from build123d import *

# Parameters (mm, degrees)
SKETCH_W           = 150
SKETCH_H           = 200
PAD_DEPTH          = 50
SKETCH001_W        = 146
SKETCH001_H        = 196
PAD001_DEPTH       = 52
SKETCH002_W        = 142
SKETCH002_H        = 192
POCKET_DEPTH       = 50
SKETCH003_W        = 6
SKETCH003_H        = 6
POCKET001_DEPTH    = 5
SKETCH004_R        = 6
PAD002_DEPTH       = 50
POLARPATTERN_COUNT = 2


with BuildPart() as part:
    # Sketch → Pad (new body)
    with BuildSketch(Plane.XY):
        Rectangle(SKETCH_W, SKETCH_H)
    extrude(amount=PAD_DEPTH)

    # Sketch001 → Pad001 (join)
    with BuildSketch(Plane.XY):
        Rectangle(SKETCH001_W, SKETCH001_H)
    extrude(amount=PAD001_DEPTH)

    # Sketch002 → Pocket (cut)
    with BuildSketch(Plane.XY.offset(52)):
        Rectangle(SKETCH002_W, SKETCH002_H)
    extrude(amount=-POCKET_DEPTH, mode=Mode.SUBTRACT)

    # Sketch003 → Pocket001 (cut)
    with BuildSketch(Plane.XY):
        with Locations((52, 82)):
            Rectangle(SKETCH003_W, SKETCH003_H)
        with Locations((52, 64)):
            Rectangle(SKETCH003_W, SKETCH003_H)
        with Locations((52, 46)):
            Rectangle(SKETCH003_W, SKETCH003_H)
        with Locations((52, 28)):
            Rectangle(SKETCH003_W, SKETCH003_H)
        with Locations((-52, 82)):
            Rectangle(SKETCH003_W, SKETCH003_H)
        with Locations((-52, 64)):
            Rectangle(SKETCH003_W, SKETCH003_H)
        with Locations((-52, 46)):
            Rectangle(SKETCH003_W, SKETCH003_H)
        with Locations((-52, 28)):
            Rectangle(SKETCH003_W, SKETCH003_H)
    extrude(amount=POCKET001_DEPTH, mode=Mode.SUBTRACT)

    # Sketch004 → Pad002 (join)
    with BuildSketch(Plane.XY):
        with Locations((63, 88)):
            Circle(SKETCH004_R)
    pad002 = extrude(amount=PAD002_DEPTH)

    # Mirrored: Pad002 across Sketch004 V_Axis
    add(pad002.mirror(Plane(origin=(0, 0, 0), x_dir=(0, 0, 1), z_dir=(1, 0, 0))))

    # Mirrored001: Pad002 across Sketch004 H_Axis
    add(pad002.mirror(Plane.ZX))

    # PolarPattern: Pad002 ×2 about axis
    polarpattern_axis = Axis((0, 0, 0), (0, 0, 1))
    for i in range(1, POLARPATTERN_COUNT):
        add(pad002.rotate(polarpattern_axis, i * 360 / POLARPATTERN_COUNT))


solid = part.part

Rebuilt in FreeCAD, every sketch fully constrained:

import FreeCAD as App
import Part
import Sketcher
from FreeCAD import Vector
Q = App.Units.Quantity


def add_polygon(sketch, points):
    """Adds a closed chain of lines whose ends are joined by coincident constraints."""
    first, n = sketch.GeometryCount, len(points)
    for a, b in zip(points, points[1:] + points[:1]):
        sketch.addGeometry(Part.LineSegment(App.Vector(*a, 0), App.Vector(*b, 0)), False)
    for i in range(n):
        sketch.addConstraint(Sketcher.Constraint("Coincident", first + i, 2, first + (i + 1) % n, 1))

doc = App.newDocument("Part")
body = doc.addObject("PartDesign::Body", "Body")

sketch1 = body.newObject("Sketcher::SketchObject", "Sketch")
sketch1.AttachmentSupport = (doc.getObject("XY_Plane"), [""])
sketch1.MapMode = "FlatFace"
add_polygon(sketch1, [(-75, 100), (-75, -100), (75, -100), (75, 100)])
sketch1.addConstraint([
    Sketcher.Constraint("Vertical", 0),
    Sketcher.Constraint("Horizontal", 1),
    Sketcher.Constraint("Vertical", 2),
    Sketcher.Constraint("Horizontal", 3),
    Sketcher.Constraint("Symmetric", 0, 2, 2, 2, -1, 1),
    Sketcher.Constraint("DistanceX", 1, 1, 1, 2, Q("150 mm")),
    Sketcher.Constraint("DistanceY", 0, 2, 0, 1, Q("200 mm")),
])
pad1 = body.newObject("PartDesign::Pad", "Pad")
pad1.Profile = sketch1
pad1.Length = 50

sketch2 = body.newObject("Sketcher::SketchObject", "Sketch001")
sketch2.AttachmentSupport = (doc.getObject("XY_Plane"), [""])
sketch2.MapMode = "FlatFace"
add_polygon(sketch2, [(-73, 98), (-73, -98), (73, -98), (73, 98)])
sketch2.addConstraint([
    Sketcher.Constraint("Vertical", 0),
    Sketcher.Constraint("Horizontal", 1),
    Sketcher.Constraint("Vertical", 2),
    Sketcher.Constraint("Horizontal", 3),
    Sketcher.Constraint("Symmetric", 0, 2, 2, 2, -1, 1),
    Sketcher.Constraint("DistanceX", 1, 1, 1, 2, Q("146 mm")),
    Sketcher.Constraint("DistanceY", 0, 2, 0, 1, Q("196 mm")),
])
pad2 = body.newObject("PartDesign::Pad", "Pad001")
pad2.Profile = sketch2
pad2.Length = 52

sketch3 = body.newObject("Sketcher::SketchObject", "Sketch002")
sketch3.AttachmentSupport = (doc.getObject("XY_Plane"), [""])
sketch3.MapMode = "FlatFace"
sketch3.AttachmentOffset = App.Placement(Vector(0, 0, 52), App.Rotation())
add_polygon(sketch3, [(-71, 96), (-71, -96), (71, -96), (71, 96)])
sketch3.addConstraint([
    Sketcher.Constraint("Vertical", 0),
    Sketcher.Constraint("Horizontal", 1),
    Sketcher.Constraint("Vertical", 2),
    Sketcher.Constraint("Horizontal", 3),
    Sketcher.Constraint("Symmetric", 0, 2, 2, 2, -1, 1),
    Sketcher.Constraint("DistanceX", 1, 1, 1, 2, Q("142 mm")),
    Sketcher.Constraint("DistanceY", 0, 2, 0, 1, Q("192 mm")),
])
pocket1 = body.newObject("PartDesign::Pocket", "Pocket")
pocket1.Profile = sketch3
pocket1.Length = 50

sketch4 = body.newObject("Sketcher::SketchObject", "Sketch003")
sketch4.AttachmentSupport = (doc.getObject("XY_Plane"), [""])
sketch4.MapMode = "FlatFace"
add_polygon(sketch4, [(49, 85), (49, 79), (55, 79), (55, 85)])
add_polygon(sketch4, [(49, 67), (49, 61), (55, 61), (55, 67)])
add_polygon(sketch4, [(49, 49), (49, 43), (55, 43), (55, 49)])
add_polygon(sketch4, [(49, 31), (49, 25), (55, 25), (55, 31)])
add_polygon(sketch4, [(-55, 85), (-55, 79), (-49, 79), (-49, 85)])
add_polygon(sketch4, [(-55, 67), (-55, 61), (-49, 61), (-49, 67)])
add_polygon(sketch4, [(-55, 49), (-55, 43), (-49, 43), (-49, 49)])
add_polygon(sketch4, [(-55, 31), (-55, 25), (-49, 25), (-49, 31)])
sketch4.addConstraint([
    Sketcher.Constraint("Vertical", 0),
    Sketcher.Constraint("Horizontal", 1),
    Sketcher.Constraint("Vertical", 2),
    Sketcher.Constraint("Horizontal", 3),
    Sketcher.Constraint("Vertical", 4),
    Sketcher.Constraint("Horizontal", 5),
    Sketcher.Constraint("Vertical", 6),
    Sketcher.Constraint("Horizontal", 7),
    Sketcher.Constraint("Vertical", 8),
    Sketcher.Constraint("Horizontal", 9),
    Sketcher.Constraint("Vertical", 10),
    Sketcher.Constraint("Horizontal", 11),
    Sketcher.Constraint("Vertical", 12),
    Sketcher.Constraint("Horizontal", 13),
    Sketcher.Constraint("Vertical", 14),
    Sketcher.Constraint("Horizontal", 15),
    Sketcher.Constraint("Vertical", 16),
    Sketcher.Constraint("Horizontal", 17),
    Sketcher.Constraint("Vertical", 18),
    Sketcher.Constraint("Horizontal", 19),
    Sketcher.Constraint("Vertical", 20),
    Sketcher.Constraint("Horizontal", 21),
    Sketcher.Constraint("Vertical", 22),
    Sketcher.Constraint("Horizontal", 23),
    Sketcher.Constraint("Vertical", 24),
    Sketcher.Constraint("Horizontal", 25),
    Sketcher.Constraint("Vertical", 26),
    Sketcher.Constraint("Horizontal", 27),
    Sketcher.Constraint("Vertical", 28),
    Sketcher.Constraint("Horizontal", 29),
    Sketcher.Constraint("Vertical", 30),
    Sketcher.Constraint("Horizontal", 31),
    Sketcher.Constraint("Symmetric", 1, 2, 16, 2, -2),
    Sketcher.Constraint("Symmetric", 3, 2, 18, 2, -2),
    Sketcher.Constraint("Symmetric", 5, 2, 20, 2, -2),
    Sketcher.Constraint("Symmetric", 7, 2, 22, 2, -2),
    Sketcher.Constraint("Symmetric", 9, 2, 24, 2, -2),
    Sketcher.Constraint("Symmetric", 11, 2, 26, 2, -2),
    Sketcher.Constraint("Symmetric", 13, 2, 28, 2, -2),
    Sketcher.Constraint("Symmetric", 15, 2, 30, 2, -2),
    Sketcher.Constraint("Vertical", 3, 2, 4, 2),
    Sketcher.Constraint("Vertical", 2, 2, 5, 2),
    Sketcher.Constraint("Vertical", 7, 2, 8, 2),
    Sketcher.Constraint("Vertical", 6, 2, 9, 2),
    Sketcher.Constraint("Vertical", 11, 2, 12, 2),
    Sketcher.Constraint("Vertical", 10, 2, 13, 2),
    Sketcher.Constraint("Equal", 31, 0),
    Sketcher.Constraint("Equal", 2, 4),
    Sketcher.Constraint("Equal", 6, 8),
    Sketcher.Constraint("Equal", 10, 12),
    Sketcher.Constraint("DistanceX", 1, 1, 1, 2, Q("6 mm")),
    Sketcher.Constraint("DistanceX", -1, 1, 0, 2, Q("49 mm")),
    Sketcher.Constraint("DistanceY", -1, 1, 0, 2, Q("79 mm")),
    Sketcher.Constraint("DistanceY", -1, 1, 4, 2, Q("61 mm")),
    Sketcher.Constraint("DistanceY", -1, 1, 8, 2, Q("43 mm")),
    Sketcher.Constraint("DistanceY", -1, 1, 12, 2, Q("25 mm")),
])
pocket2 = body.newObject("PartDesign::Pocket", "Pocket001")
pocket2.Profile = sketch4
pocket2.Length = 5
pocket2.Reversed = True

sketch5 = body.newObject("Sketcher::SketchObject", "Sketch004")
sketch5.AttachmentSupport = (doc.getObject("XY_Plane"), [""])
sketch5.MapMode = "FlatFace"
sketch5.addGeometry(Part.Circle(Vector(63, 88, 0), Vector(0, 0, 1), 6), False)
sketch5.addConstraint([
    Sketcher.Constraint("Diameter", 0, Q("12 mm")),
    Sketcher.Constraint("DistanceX", -1, 1, 0, 3, Q("63 mm")),
    Sketcher.Constraint("DistanceY", -1, 1, 0, 3, Q("88 mm")),
])
pad3 = body.newObject("PartDesign::Pad", "Pad002")
pad3.Profile = sketch5
pad3.Length = 50
doc.recompute()

mirrored = body.newObject("PartDesign::Mirrored", "Mirrored")
mirrored.Originals = [pad3]
mirrored.MirrorPlane = (doc.getObject("YZ_Plane"), [""])
body.Tip = mirrored
doc.recompute()

mirrored2 = body.newObject("PartDesign::Mirrored", "Mirrored001")
mirrored2.Originals = [pad3]
mirrored2.MirrorPlane = (doc.getObject("XZ_Plane"), [""])
body.Tip = mirrored2
doc.recompute()

polarpattern = body.newObject("PartDesign::PolarPattern", "PolarPattern")
polarpattern.Originals = [pad3]
polarpattern.Axis = (doc.getObject("Z_Axis"), [""])
polarpattern.Angle = 360
polarpattern.Occurrences = 2
body.Tip = polarpattern

doc.recompute()
